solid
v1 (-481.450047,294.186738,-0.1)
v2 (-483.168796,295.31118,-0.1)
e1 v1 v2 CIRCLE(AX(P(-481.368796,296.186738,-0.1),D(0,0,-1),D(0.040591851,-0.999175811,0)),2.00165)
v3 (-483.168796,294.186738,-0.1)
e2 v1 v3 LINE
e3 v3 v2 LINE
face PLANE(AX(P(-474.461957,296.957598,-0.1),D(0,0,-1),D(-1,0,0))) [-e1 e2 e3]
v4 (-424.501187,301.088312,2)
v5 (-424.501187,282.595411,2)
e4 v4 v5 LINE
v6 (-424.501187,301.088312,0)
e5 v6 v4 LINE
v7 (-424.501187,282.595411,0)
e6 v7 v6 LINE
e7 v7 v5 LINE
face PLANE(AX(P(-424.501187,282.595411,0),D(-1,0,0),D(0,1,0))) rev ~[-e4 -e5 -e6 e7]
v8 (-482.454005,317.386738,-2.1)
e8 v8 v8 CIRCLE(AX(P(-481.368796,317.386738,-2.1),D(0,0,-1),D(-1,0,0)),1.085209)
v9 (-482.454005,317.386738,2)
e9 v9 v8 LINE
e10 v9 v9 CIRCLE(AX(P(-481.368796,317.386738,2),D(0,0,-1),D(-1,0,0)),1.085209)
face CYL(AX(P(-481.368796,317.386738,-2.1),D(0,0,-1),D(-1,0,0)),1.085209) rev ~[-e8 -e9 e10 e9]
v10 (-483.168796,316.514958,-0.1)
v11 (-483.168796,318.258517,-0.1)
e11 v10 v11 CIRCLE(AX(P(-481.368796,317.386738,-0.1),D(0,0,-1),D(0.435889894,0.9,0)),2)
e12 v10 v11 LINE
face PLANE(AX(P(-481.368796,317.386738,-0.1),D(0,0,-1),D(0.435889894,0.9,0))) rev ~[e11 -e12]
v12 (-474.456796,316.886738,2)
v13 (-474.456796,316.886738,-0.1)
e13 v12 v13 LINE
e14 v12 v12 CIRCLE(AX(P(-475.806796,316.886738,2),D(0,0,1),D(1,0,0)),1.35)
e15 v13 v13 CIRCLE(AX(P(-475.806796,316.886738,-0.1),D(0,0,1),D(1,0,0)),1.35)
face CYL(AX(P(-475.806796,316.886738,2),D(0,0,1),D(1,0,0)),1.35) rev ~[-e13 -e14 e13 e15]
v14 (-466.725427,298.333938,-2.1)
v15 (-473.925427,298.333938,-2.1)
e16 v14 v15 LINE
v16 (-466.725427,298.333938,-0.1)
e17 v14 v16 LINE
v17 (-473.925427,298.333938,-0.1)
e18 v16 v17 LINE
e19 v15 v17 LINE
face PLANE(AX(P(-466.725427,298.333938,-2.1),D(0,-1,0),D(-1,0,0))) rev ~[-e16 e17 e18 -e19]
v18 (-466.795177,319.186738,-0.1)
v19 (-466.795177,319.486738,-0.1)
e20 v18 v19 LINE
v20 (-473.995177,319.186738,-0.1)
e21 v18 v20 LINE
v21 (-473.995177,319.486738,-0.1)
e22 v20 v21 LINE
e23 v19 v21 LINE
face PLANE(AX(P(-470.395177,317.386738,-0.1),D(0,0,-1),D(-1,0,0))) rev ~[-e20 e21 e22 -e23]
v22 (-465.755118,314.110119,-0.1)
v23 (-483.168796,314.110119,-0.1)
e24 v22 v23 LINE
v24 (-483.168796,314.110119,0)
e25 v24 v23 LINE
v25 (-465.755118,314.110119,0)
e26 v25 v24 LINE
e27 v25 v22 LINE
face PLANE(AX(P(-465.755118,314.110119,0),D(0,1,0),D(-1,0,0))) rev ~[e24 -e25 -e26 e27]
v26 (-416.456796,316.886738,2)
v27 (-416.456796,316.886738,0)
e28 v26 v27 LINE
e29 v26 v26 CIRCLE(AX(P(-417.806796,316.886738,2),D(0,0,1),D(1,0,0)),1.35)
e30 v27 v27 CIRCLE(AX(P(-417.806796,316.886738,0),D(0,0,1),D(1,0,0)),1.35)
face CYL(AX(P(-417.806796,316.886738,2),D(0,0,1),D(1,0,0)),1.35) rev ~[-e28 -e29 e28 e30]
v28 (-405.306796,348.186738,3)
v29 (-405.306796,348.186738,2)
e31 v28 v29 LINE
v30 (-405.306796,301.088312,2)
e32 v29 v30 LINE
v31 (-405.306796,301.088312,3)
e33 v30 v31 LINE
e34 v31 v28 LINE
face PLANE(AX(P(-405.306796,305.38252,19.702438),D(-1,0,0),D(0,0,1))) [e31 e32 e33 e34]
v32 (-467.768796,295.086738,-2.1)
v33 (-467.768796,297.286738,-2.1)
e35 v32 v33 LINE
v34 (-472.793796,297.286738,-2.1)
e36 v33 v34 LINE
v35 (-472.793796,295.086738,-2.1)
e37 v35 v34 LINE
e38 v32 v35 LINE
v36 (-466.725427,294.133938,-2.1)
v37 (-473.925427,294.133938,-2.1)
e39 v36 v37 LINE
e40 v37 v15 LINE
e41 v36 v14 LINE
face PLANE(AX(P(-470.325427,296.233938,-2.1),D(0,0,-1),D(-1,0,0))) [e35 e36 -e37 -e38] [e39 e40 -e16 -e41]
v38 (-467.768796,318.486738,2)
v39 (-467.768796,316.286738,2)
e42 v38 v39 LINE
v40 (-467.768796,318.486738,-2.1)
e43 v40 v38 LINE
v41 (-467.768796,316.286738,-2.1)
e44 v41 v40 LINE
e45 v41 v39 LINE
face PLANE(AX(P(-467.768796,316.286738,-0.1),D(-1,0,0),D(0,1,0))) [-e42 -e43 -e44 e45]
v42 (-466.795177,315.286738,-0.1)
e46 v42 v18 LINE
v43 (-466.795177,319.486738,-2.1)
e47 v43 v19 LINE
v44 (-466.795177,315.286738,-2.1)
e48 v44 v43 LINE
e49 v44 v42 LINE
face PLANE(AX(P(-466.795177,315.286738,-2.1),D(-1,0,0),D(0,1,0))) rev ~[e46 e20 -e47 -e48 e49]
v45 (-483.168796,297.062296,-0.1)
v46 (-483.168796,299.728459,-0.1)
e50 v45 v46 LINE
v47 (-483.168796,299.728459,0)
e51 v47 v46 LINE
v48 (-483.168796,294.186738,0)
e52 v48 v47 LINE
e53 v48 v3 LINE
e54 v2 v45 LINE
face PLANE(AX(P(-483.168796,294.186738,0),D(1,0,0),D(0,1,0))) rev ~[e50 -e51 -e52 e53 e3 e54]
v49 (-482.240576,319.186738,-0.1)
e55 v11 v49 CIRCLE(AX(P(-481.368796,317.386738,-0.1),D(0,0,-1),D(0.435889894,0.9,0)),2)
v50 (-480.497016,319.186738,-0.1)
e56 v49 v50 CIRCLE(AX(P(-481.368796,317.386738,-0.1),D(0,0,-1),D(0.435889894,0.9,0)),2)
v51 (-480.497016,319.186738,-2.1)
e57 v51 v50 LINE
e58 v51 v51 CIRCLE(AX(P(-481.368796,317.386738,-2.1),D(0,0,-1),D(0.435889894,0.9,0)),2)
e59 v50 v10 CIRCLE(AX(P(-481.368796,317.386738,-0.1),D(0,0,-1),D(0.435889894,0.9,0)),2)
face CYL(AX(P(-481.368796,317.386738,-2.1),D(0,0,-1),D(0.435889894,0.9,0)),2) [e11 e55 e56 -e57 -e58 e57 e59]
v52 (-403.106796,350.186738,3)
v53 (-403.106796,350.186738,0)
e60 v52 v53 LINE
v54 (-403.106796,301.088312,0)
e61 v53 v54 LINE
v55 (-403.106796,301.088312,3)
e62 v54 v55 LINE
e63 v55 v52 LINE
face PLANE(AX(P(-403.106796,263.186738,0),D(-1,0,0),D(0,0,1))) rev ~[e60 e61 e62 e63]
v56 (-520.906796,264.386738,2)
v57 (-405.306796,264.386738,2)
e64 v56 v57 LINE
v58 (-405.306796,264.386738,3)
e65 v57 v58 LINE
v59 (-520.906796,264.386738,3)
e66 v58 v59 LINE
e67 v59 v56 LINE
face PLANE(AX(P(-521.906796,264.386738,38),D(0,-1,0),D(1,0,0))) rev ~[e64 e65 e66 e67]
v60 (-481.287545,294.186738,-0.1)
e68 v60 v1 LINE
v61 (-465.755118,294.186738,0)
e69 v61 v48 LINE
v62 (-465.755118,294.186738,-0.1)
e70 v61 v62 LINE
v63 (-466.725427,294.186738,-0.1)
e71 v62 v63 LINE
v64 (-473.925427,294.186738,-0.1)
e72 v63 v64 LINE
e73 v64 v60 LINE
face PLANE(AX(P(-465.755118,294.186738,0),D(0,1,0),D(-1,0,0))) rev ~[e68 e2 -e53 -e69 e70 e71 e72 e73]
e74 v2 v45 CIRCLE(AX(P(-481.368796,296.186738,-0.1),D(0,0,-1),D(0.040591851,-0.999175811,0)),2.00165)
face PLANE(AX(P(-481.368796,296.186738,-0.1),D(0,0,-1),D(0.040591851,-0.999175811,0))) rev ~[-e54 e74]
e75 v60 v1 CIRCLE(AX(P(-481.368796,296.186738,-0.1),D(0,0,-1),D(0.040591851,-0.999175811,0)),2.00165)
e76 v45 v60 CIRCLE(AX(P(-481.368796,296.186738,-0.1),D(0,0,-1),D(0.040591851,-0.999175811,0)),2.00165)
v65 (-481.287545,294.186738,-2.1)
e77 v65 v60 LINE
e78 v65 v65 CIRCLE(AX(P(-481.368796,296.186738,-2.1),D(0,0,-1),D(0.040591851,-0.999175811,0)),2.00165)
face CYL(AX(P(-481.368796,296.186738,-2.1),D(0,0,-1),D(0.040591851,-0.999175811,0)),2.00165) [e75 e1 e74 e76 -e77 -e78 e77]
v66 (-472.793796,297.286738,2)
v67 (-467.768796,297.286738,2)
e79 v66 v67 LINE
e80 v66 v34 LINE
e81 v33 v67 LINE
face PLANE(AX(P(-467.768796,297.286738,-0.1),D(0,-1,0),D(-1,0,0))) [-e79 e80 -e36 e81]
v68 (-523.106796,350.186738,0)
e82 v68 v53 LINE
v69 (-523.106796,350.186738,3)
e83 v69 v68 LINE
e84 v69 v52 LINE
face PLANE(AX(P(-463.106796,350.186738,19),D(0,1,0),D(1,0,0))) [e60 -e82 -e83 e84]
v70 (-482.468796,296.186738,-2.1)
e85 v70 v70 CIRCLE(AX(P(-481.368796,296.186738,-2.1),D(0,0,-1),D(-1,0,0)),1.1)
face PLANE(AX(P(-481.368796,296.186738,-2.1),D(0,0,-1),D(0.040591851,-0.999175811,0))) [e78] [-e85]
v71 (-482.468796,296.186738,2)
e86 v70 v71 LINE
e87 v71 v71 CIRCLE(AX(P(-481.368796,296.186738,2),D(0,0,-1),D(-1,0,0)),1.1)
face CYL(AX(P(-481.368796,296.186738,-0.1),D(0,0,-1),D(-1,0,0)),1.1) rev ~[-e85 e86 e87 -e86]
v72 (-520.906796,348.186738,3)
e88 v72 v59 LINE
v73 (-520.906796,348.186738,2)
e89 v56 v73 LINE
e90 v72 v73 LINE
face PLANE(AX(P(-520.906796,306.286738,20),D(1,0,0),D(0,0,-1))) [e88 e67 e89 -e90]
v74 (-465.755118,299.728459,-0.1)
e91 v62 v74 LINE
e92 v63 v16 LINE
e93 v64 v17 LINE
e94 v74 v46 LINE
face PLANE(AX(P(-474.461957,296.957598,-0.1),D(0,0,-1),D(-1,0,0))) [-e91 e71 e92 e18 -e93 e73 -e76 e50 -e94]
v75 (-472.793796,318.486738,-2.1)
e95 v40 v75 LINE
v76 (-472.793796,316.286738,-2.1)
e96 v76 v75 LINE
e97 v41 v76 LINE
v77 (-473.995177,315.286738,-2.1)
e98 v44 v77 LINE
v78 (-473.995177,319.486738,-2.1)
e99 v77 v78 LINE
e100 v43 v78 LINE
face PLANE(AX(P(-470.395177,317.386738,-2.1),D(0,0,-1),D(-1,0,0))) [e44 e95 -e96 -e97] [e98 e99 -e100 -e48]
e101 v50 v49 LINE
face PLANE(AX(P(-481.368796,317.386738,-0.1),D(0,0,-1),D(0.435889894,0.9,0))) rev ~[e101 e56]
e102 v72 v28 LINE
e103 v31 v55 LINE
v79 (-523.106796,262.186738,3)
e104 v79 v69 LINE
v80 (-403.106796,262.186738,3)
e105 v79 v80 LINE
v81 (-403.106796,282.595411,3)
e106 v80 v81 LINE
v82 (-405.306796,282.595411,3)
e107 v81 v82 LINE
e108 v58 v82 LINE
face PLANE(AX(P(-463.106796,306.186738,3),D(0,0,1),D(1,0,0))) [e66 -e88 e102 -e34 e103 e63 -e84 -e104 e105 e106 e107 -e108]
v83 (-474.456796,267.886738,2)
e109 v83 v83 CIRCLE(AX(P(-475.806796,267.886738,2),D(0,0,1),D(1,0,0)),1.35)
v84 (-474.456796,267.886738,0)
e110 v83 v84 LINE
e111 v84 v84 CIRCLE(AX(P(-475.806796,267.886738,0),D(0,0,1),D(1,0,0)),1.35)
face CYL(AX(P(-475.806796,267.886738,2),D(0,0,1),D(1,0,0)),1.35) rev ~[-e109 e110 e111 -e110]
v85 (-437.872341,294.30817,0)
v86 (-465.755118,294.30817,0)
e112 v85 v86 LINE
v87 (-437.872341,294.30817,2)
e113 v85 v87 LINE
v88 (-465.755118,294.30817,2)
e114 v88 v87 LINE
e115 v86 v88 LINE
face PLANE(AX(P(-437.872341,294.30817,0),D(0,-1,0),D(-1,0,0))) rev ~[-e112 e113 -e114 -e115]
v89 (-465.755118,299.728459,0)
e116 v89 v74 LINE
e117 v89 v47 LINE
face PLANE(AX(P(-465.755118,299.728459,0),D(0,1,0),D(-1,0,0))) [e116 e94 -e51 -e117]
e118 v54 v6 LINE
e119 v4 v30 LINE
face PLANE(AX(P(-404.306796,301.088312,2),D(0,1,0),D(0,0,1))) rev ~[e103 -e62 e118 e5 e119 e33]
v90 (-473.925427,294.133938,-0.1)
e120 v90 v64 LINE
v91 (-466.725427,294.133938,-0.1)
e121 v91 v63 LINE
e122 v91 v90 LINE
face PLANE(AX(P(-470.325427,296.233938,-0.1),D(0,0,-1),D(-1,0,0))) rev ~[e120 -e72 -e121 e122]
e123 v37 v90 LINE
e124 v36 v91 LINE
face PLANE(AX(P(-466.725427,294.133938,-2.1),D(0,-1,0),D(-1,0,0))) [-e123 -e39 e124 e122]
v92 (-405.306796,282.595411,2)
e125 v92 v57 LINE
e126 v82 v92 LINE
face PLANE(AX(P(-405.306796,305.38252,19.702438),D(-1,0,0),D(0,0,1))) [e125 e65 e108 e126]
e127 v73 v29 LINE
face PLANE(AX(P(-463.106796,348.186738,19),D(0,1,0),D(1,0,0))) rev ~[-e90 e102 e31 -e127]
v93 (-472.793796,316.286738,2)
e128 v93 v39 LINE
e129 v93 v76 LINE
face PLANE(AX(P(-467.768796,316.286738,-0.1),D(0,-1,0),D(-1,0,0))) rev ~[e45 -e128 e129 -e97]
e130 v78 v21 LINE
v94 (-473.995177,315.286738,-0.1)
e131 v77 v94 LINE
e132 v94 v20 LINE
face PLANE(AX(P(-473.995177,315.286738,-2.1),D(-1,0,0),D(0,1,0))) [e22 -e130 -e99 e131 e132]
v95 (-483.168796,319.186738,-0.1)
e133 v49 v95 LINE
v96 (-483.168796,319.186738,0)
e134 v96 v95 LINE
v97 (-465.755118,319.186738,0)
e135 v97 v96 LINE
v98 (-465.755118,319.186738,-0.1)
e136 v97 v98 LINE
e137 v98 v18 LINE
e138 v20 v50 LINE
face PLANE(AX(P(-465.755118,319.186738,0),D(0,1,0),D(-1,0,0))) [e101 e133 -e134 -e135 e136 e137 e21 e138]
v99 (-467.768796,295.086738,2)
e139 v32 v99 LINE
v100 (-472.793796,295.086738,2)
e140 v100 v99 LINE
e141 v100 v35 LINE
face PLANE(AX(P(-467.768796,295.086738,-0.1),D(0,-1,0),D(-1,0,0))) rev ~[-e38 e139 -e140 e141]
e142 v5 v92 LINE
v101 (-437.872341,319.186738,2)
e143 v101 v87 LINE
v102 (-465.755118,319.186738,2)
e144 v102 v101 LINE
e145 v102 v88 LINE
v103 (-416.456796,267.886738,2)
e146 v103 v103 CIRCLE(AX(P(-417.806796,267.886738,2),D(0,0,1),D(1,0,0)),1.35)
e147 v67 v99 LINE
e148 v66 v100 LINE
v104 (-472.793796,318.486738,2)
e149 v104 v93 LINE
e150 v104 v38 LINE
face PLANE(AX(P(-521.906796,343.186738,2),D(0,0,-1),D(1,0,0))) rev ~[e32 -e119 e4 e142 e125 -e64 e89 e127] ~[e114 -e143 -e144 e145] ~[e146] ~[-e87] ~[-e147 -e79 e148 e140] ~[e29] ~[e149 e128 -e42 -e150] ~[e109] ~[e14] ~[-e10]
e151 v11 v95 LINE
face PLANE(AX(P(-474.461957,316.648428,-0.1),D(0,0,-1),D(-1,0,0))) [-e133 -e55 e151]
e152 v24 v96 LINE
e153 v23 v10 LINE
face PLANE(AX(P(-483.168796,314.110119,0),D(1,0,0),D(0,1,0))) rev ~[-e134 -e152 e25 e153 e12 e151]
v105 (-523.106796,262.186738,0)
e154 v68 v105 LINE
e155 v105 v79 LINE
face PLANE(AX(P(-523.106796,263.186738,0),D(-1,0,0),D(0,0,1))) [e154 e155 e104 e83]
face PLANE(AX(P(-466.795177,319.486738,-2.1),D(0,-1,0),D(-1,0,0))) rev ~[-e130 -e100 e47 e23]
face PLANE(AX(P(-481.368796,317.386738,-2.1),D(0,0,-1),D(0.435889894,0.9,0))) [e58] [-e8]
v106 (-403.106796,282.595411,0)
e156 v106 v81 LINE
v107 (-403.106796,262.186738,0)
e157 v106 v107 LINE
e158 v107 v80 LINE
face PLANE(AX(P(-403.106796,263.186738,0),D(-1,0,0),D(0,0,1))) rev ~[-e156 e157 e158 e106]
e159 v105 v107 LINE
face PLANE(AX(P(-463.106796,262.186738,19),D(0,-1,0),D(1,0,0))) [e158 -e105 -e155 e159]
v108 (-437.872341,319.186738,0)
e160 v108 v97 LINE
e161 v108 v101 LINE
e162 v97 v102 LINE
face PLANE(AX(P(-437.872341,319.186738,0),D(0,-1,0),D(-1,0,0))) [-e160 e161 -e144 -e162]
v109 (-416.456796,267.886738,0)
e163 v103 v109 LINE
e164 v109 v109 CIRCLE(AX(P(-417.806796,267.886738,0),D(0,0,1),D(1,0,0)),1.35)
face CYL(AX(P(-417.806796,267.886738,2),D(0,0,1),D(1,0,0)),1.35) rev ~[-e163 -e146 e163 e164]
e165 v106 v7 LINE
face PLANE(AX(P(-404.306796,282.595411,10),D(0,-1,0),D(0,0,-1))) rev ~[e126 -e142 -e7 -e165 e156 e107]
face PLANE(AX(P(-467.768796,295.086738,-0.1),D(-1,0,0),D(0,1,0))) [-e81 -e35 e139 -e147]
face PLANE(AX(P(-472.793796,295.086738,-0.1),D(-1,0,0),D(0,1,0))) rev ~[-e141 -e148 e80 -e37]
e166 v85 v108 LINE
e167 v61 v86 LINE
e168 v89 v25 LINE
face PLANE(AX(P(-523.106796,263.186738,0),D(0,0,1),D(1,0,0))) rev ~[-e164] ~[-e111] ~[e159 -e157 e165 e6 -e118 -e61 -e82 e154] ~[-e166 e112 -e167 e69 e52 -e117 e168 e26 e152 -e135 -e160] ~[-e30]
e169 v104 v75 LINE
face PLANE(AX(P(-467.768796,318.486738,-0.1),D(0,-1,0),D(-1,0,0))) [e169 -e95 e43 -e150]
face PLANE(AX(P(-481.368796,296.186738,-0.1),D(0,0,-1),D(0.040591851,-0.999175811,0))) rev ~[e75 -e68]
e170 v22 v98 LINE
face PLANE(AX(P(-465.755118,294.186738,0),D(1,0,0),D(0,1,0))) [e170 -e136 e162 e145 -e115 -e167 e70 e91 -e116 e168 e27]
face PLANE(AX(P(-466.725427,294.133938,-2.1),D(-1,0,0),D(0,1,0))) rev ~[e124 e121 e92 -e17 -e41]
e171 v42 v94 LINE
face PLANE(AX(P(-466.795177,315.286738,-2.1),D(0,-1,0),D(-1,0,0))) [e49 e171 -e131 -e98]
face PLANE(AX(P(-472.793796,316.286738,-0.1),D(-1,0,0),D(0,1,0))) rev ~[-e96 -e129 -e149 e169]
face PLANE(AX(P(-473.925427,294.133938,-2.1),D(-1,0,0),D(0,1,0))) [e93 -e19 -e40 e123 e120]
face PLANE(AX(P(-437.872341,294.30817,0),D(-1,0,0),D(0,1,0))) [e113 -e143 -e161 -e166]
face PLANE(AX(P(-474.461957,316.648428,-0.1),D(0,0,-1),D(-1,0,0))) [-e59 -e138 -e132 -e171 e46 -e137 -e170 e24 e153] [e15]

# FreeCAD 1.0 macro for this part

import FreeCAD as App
import Part
import Sketcher
from FreeCAD import Vector

doc = App.newDocument("Part")
params = doc.addObject("Spreadsheet::Sheet", "Params")
for row, (alias, value) in enumerate([
    ("sketch1_width", "120 mm"),
    ("sketch1_height", "80 mm"),
    ("pad1_length", "38 mm"),
    ("sketch2_width", "117.6 mm"),
    ("sketch2_height", "77.6 mm"),
    ("pocket1_length", "36 mm"),
    ("pocket2_length", "10 mm"),
    ("pad2_length", "0.1 mm"),
    ("pocket3_length", "12 mm"),
    ("sketch6_diameter", "2.2 mm"),
    ("sketch6_height", "2.2 mm"),
    ("pocket4_length", "12 mm"),
    ("sketch7_diameter", "2.7 mm"),
    ("pocket5_length", "12 mm"),
    ("sketch8_height", "36 mm"),
    ("sketch8_width", "117.6 mm"),
    ("pocket6_length", "10 mm"),
    ("sketch9_width", "120 mm"),
    ("sketch9_height", "36 mm"),
    ("sketch9_height2", "38 mm"),
    ("sketch9_width2", "117.6 mm"),
    ("pad3_length", "5 mm"),
    ("sketch10_width", "120 mm"),
    ("sketch10_height", "38 mm"),
    ("pad4_length", "2 mm"),
    ("sketch11_height", "36 mm"),
    ("sketch11_width", "83.8 mm"),
    ("pad5_length", "1 mm"),
    ("sketch12_height", "8 mm"),
    ("sketch12_height2", "36 mm"),
    ("sketch12_width", "83.8 mm"),
    ("pad6_length", "1 mm"),
    ("sketch13_width", "120 mm"),
    ("sketch13_height", "38 mm"),
    ("pad7_length", "1 mm"),
    ("sketch14_diameter", "4 mm"),
    ("sketch14_diameter2", "2.2 mm"),
    ("sketch14_width", "7.2 mm"),
    ("sketch14_height", "4.2 mm"),
    ("sketch14_height2", "2.2 mm"),
    ("pad8_length", "2 mm"),
    ("sketch15_width", "120 mm"),
    ("sketch15_height", "88 mm"),
    ("pocket7_length", "35 mm"),
], start=1):
    params.set(f"A{row}", alias)
    params.set(f"B{row}", "=" + value)
    params.setAlias(f"B{row}", alias)

body = doc.addObject("PartDesign::Body", "Body")

sketch1 = body.newObject("Sketcher::SketchObject", "Sketch")
sketch1.AttachmentSupport = (doc.getObject("XY_Plane"), [""])
sketch1.MapMode = "FlatFace"
sketch1.addGeometry(Part.LineSegment(Vector(-523, 343, 0), Vector(-523, 263, 0)), False)
sketch1.addGeometry(Part.LineSegment(Vector(-523, 263, 0), Vector(-403, 263, 0)), False)
sketch1.addGeometry(Part.LineSegment(Vector(-403, 263, 0), Vector(-403, 343, 0)), False)
sketch1.addGeometry(Part.LineSegment(Vector(-403, 343, 0), Vector(-523, 343, 0)), False)
sketch1.addConstraint(Sketcher.Constraint("Coincident", 0, 2, 1, 1))
sketch1.addConstraint(Sketcher.Constraint("Coincident", 1, 2, 2, 1))
sketch1.addConstraint(Sketcher.Constraint("Coincident", 2, 2, 3, 1))
sketch1.addConstraint(Sketcher.Constraint("Coincident", 3, 2, 0, 1))
sketch1.addConstraint(Sketcher.Constraint("Vertical", 0))
sketch1.addConstraint(Sketcher.Constraint("Horizontal", 1))
sketch1.addConstraint(Sketcher.Constraint("Vertical", 2))
sketch1.addConstraint(Sketcher.Constraint("Horizontal", 3))
sketch1.addConstraint(Sketcher.Constraint("DistanceX", 1, 1, 1, 2, 120.0))
sketch1.addConstraint(Sketcher.Constraint("DistanceY", 0, 2, 0, 1, 80.0))
sketch1.addConstraint(Sketcher.Constraint("DistanceX", 0, 2, -1, 1, 523.106796))
sketch1.addConstraint(Sketcher.Constraint("DistanceY", -1, 1, 0, 2, 263.186738))
sketch1.setExpression("Constraints[8]", "Params.sketch1_width")
sketch1.setExpression("Constraints[9]", "Params.sketch1_height")
pad1 = body.newObject("PartDesign::Pad", "Pad")
pad1.Profile = sketch1
pad1.setExpression("Length", "Params.pad1_length")

sketch2 = body.newObject("Sketcher::SketchObject", "Sketch001")
sketch2.AttachmentSupport = (doc.getObject("XY_Plane"), [""])
sketch2.MapMode = "FlatFace"
sketch2.AttachmentOffset = App.Placement(Vector(0, 0, 38), App.Rotation())
sketch2.addGeometry(Part.LineSegment(Vector(-522, 342, 0), Vector(-522, 264, 0)), False)
sketch2.addGeometry(Part.LineSegment(Vector(-522, 264, 0), Vector(-404, 264, 0)), False)
sketch2.addGeometry(Part.LineSegment(Vector(-404, 264, 0), Vector(-404, 342, 0)), False)
sketch2.addGeometry(Part.LineSegment(Vector(-404, 342, 0), Vector(-522, 342, 0)), False)
sketch2.addConstraint(Sketcher.Constraint("Coincident", 0, 2, 1, 1))
sketch2.addConstraint(Sketcher.Constraint("Coincident", 1, 2, 2, 1))
sketch2.addConstraint(Sketcher.Constraint("Coincident", 2, 2, 3, 1))
sketch2.addConstraint(Sketcher.Constraint("Coincident", 3, 2, 0, 1))
sketch2.addConstraint(Sketcher.Constraint("Vertical", 0))
sketch2.addConstraint(Sketcher.Constraint("Horizontal", 1))
sketch2.addConstraint(Sketcher.Constraint("Vertical", 2))
sketch2.addConstraint(Sketcher.Constraint("Horizontal", 3))
sketch2.addConstraint(Sketcher.Constraint("DistanceX", 1, 1, 1, 2, 117.6))
sketch2.addConstraint(Sketcher.Constraint("DistanceY", 0, 2, 0, 1, 77.6))
sketch2.addConstraint(Sketcher.Constraint("DistanceX", 0, 2, -1, 1, 521.906796))
sketch2.addConstraint(Sketcher.Constraint("DistanceY", -1, 1, 0, 2, 264.386738))
sketch2.setExpression("Constraints[8]", "Params.sketch2_width")
sketch2.setExpression("Constraints[9]", "Params.sketch2_height")
pocket1 = body.newObject("PartDesign::Pocket", "Pocket")
pocket1.Profile = sketch2
pocket1.setExpression("Length", "Params.pocket1_length")

sketch3 = body.newObject("Sketcher::SketchObject", "Sketch002")
sketch3.AttachmentSupport = (doc.getObject("XY_Plane"), [""])
sketch3.MapMode = "FlatFace"
sketch3.addGeometry(Part.LineSegment(Vector(-399, 301, 0), Vector(-399, 283, 0)), False)
sketch3.addGeometry(Part.LineSegment(Vector(-399, 283, 0), Vector(-425, 283, 0)), False)
sketch3.addGeometry(Part.LineSegment(Vector(-425, 283, 0), Vector(-425, 301, 0)), False)
sketch3.addGeometry(Part.LineSegment(Vector(-425, 301, 0), Vector(-399, 301, 0)), False)
sketch3.addConstraint(Sketcher.Constraint("Coincident", 0, 2, 1, 1))
sketch3.addConstraint(Sketcher.Constraint("Coincident", 1, 2, 2, 1))
sketch3.addConstraint(Sketcher.Constraint("Coincident", 2, 2, 3, 1))
sketch3.addConstraint(Sketcher.Constraint("Coincident", 3, 2, 0, 1))
sketch3.addConstraint(Sketcher.Constraint("Vertical", 0))
sketch3.addConstraint(Sketcher.Constraint("Horizontal", 1))
sketch3.addConstraint(Sketcher.Constraint("Vertical", 2))
sketch3.addConstraint(Sketcher.Constraint("Horizontal", 3))
sketch3.addConstraint(Sketcher.Constraint("DistanceY", 0, 2, 0, 1, 18.492901))
sketch3.addConstraint(Sketcher.Constraint("DistanceX", 1, 2, 1, 1, 25.152971))
sketch3.addConstraint(Sketcher.Constraint("DistanceY", -1, 1, 0, 2, 282.595411))
sketch3.addConstraint(Sketcher.Constraint("DistanceX", 0, 2, -1, 1, 399.348216))
pocket2 = body.newObject("PartDesign::Pocket", "Pocket001")
pocket2.Profile = sketch3
pocket2.setExpression("Length", "Params.pocket2_length")
pocket2.Reversed = True

sketch4 = body.newObject("Sketcher::SketchObject", "Sketch003")
sketch4.AttachmentSupport = (doc.getObject("XY_Plane"), [""])
sketch4.MapMode = "FlatFace"
sketch4.addGeometry(Part.LineSegment(Vector(-466, 319, 0), Vector(-466, 314, 0)), False)
sketch4.addGeometry(Part.LineSegment(Vector(-466, 314, 0), Vector(-483, 314, 0)), False)
sketch4.addGeometry(Part.LineSegment(Vector(-483, 314, 0), Vector(-483, 319, 0)), False)
sketch4.addGeometry(Part.LineSegment(Vector(-483, 319, 0), Vector(-466, 319, 0)), False)
sketch4.addGeometry(Part.LineSegment(Vector(-466, 300, 0), Vector(-466, 294, 0)), False)
sketch4.addGeometry(Part.LineSegment(Vector(-466, 294, 0), Vector(-483, 294, 0)), False)
sketch4.addGeometry(Part.LineSegment(Vector(-483, 294, 0), Vector(-483, 300, 0)), False)
sketch4.addGeometry(Part.LineSegment(Vector(-483, 300, 0), Vector(-466, 300, 0)), False)
sketch4.addConstraint(Sketcher.Constraint("Coincident", 0, 2, 1, 1))
sketch4.addConstraint(Sketcher.Constraint("Coincident", 1, 2, 2, 1))
sketch4.addConstraint(Sketcher.Constraint("Coincident", 2, 2, 3, 1))
sketch4.addConstraint(Sketcher.Constraint("Coincident", 3, 2, 0, 1))
sketch4.addConstraint(Sketcher.Constraint("Coincident", 4, 2, 5, 1))
sketch4.addConstraint(Sketcher.Constraint("Coincident", 5, 2, 6, 1))
sketch4.addConstraint(Sketcher.Constraint("Coincident", 6, 2, 7, 1))
sketch4.addConstraint(Sketcher.Constraint("Coincident", 7, 2, 4, 1))
sketch4.addConstraint(Sketcher.Constraint("Vertical", 0))
sketch4.addConstraint(Sketcher.Constraint("Horizontal", 1))
sketch4.addConstraint(Sketcher.Constraint("Vertical", 2))
sketch4.addConstraint(Sketcher.Constraint("Horizontal", 3))
sketch4.addConstraint(Sketcher.Constraint("Vertical", 4))
sketch4.addConstraint(Sketcher.Constraint("Horizontal", 5))
sketch4.addConstraint(Sketcher.Constraint("Vertical", 6))
sketch4.addConstraint(Sketcher.Constraint("Horizontal", 7))
sketch4.addConstraint(Sketcher.Constraint("Vertical", 3, 2, 4, 2))
sketch4.addConstraint(Sketcher.Constraint("Vertical", 2, 2, 5, 2))
sketch4.addConstraint(Sketcher.Constraint("DistanceY", 4, 2, 3, 2, 25.0))
sketch4.addConstraint(Sketcher.Constraint("DistanceX", 1, 2, 1, 1, 17.413678))
sketch4.addConstraint(Sketcher.Constraint("DistanceY", 0, 2, 0, 1, 5.076619))
sketch4.addConstraint(Sketcher.Constraint("DistanceY", 4, 2, 4, 1, 5.541721))
sketch4.addConstraint(Sketcher.Constraint("DistanceY", -1, 1, 0, 2, 314.110119))
sketch4.addConstraint(Sketcher.Constraint("DistanceX", 0, 2, -1, 1, 465.755118))
pad2 = body.newObject("PartDesign::Pad", "Pad001")
pad2.Profile = sketch4
pad2.setExpression("Length", "Params.pad2_length")
pad2.Reversed = True

sketch5 = body.newObject("Sketcher::SketchObject", "Sketch004")
sketch5.AttachmentSupport = (doc.getObject("XY_Plane"), [""])
sketch5.MapMode = "FlatFace"
sketch5.addGeometry(Part.LineSegment(Vector(-438, 319, 0), Vector(-438, 294, 0)), False)
sketch5.addGeometry(Part.LineSegment(Vector(-438, 294, 0), Vector(-466, 294, 0)), False)
sketch5.addGeometry(Part.LineSegment(Vector(-466, 294, 0), Vector(-466, 319, 0)), False)
sketch5.addGeometry(Part.LineSegment(Vector(-466, 319, 0), Vector(-438, 319, 0)), False)
sketch5.addConstraint(Sketcher.Constraint("Coincident", 0, 2, 1, 1))
sketch5.addConstraint(Sketcher.Constraint("Coincident", 1, 2, 2, 1))
sketch5.addConstraint(Sketcher.Constraint("Coincident", 2, 2, 3, 1))
sketch5.addConstraint(Sketcher.Constraint("Coincident", 3, 2, 0, 1))
sketch5.addConstraint(Sketcher.Constraint("Vertical", 0))
sketch5.addConstraint(Sketcher.Constraint("Horizontal", 1))
sketch5.addConstraint(Sketcher.Constraint("Vertical", 2))
sketch5.addConstraint(Sketcher.Constraint("Horizontal", 3))
sketch5.addConstraint(Sketcher.Constraint("DistanceY", 0, 2, 0, 1, 24.878568))
sketch5.addConstraint(Sketcher.Constraint("DistanceX", 1, 2, 1, 1, 27.882777))
sketch5.addConstraint(Sketcher.Constraint("DistanceX", 0, 2, -1, 1, 437.872341))
sketch5.addConstraint(Sketcher.Constraint("DistanceY", -1, 1, 0, 2, 294.30817))
pocket3 = body.newObject("PartDesign::Pocket", "Pocket002")
pocket3.Profile = sketch5
pocket3.setExpression("Length", "Params.pocket3_length")
pocket3.Reversed = True

sketch6 = body.newObject("Sketcher::SketchObject", "Sketch005")
sketch6.AttachmentSupport = (doc.getObject("XY_Plane"), [""])
sketch6.MapMode = "FlatFace"
sketch6.AttachmentOffset = App.Placement(Vector(0, 0, -0.1), App.Rotation())
sketch6.addGeometry(Part.Circle(Vector(-481.4, 317.4, 0), Vector(0, 0, 1), 1.1), False)
sketch6.addGeometry(Part.Circle(Vector(-481.4, 296.2, 0), Vector(0, 0, 1), 1.1), False)
sketch6.addGeometry(Part.LineSegment(Vector(-467.8, 318.5, 0), Vector(-467.8, 316.3, 0)), False)
sketch6.addGeometry(Part.LineSegment(Vector(-467.8, 316.3, 0), Vector(-472.8, 316.3, 0)), False)
sketch6.addGeometry(Part.LineSegment(Vector(-472.8, 316.3, 0), Vector(-472.8, 318.5, 0)), False)
sketch6.addGeometry(Part.LineSegment(Vector(-472.8, 318.5, 0), Vector(-467.8, 318.5, 0)), False)
sketch6.addGeometry(Part.LineSegment(Vector(-467.8, 297.3, 0), Vector(-467.8, 295.1, 0)), False)
sketch6.addGeometry(Part.LineSegment(Vector(-467.8, 295.1, 0), Vector(-472.8, 295.1, 0)), False)
sketch6.addGeometry(Part.LineSegment(Vector(-472.8, 295.1, 0), Vector(-472.8, 297.3, 0)), False)
sketch6.addGeometry(Part.LineSegment(Vector(-472.8, 297.3, 0), Vector(-467.8, 297.3, 0)), False)
sketch6.addConstraint(Sketcher.Constraint("Coincident", 2, 2, 3, 1))
sketch6.addConstraint(Sketcher.Constraint("Coincident", 3, 2, 4, 1))
sketch6.addConstraint(Sketcher.Constraint("Coincident", 4, 2, 5, 1))
sketch6.addConstraint(Sketcher.Constraint("Coincident", 5, 2, 2, 1))
sketch6.addConstraint(Sketcher.Constraint("Coincident", 6, 2, 7, 1))
sketch6.addConstraint(Sketcher.Constraint("Coincident", 7, 2, 8, 1))
sketch6.addConstraint(Sketcher.Constraint("Coincident", 8, 2, 9, 1))
sketch6.addConstraint(Sketcher.Constraint("Coincident", 9, 2, 6, 1))
sketch6.addConstraint(Sketcher.Constraint("Vertical", 2))
sketch6.addConstraint(Sketcher.Constraint("Horizontal", 3))
sketch6.addConstraint(Sketcher.Constraint("Vertical", 4))
sketch6.addConstraint(Sketcher.Constraint("Horizontal", 5))
sketch6.addConstraint(Sketcher.Constraint("Vertical", 6))
sketch6.addConstraint(Sketcher.Constraint("Horizontal", 7))
sketch6.addConstraint(Sketcher.Constraint("Vertical", 8))
sketch6.addConstraint(Sketcher.Constraint("Horizontal", 9))
sketch6.addConstraint(Sketcher.Constraint("Vertical", 0, 3, 1, 3))
sketch6.addConstraint(Sketcher.Constraint("Vertical", 5, 2, 6, 2))
sketch6.addConstraint(Sketcher.Constraint("Vertical", 4, 2, 7, 2))
sketch6.addConstraint(Sketcher.Constraint("Equal", 4, 6))
sketch6.addConstraint(Sketcher.Constraint("Diameter", 1, 2.2))
sketch6.addConstraint(Sketcher.Constraint("DistanceY", 2, 2, 2, 1, 2.2))
sketch6.addConstraint(Sketcher.Constraint("DistanceY", 8, 2, 3, 2, 19.0))
sketch6.addConstraint(Sketcher.Constraint("DistanceY", 1, 3, 0, 3, 21.2))
sketch6.addConstraint(Sketcher.Constraint("DistanceX", 0, 3, 2, 2, 13.6))
sketch6.addConstraint(Sketcher.Constraint("DistanceY", 2, 2, 0, 3, 1.1))
sketch6.addConstraint(Sketcher.Constraint("Diameter", 0, 2.170418))
sketch6.addConstraint(Sketcher.Constraint("DistanceX", 3, 2, 3, 1, 5.025))
sketch6.addConstraint(Sketcher.Constraint("DistanceX", 0, 3, -1, 1, 481.368796))
sketch6.addConstraint(Sketcher.Constraint("DistanceY", -1, 1, 0, 3, 317.386738))
sketch6.setExpression("Constraints[20]", "Params.sketch6_diameter")
sketch6.setExpression("Constraints[21]", "Params.sketch6_height")
pocket4 = body.newObject("PartDesign::Pocket", "Pocket003")
pocket4.Profile = sketch6
pocket4.setExpression("Length", "Params.pocket4_length")
pocket4.Reversed = True

sketch7 = body.newObject("Sketcher::SketchObject", "Sketch006")
sketch7.AttachmentSupport = (doc.getObject("XY_Plane"), [""])
sketch7.MapMode = "FlatFace"
sketch7.AttachmentOffset = App.Placement(Vector(0, 0, 2), App.Rotation())
sketch7.addGeometry(Part.Circle(Vector(-475.8, 316.9, 0), Vector(0, 0, 1), 1.4), False)
sketch7.addGeometry(Part.Circle(Vector(-417.8, 316.9, 0), Vector(0, 0, 1), 1.4), False)
sketch7.addGeometry(Part.Circle(Vector(-417.8, 267.9, 0), Vector(0, 0, 1), 1.4), False)
sketch7.addGeometry(Part.Circle(Vector(-475.8, 267.9, 0), Vector(0, 0, 1), 1.4), False)
sketch7.addConstraint(Sketcher.Constraint("Equal", 0, 1))
sketch7.addConstraint(Sketcher.Constraint("Equal", 1, 2))
sketch7.addConstraint(Sketcher.Constraint("Equal", 2, 3))
sketch7.addConstraint(Sketcher.Constraint("Horizontal", 0, 3, 1, 3))
sketch7.addConstraint(Sketcher.Constraint("Horizontal", 2, 3, 3, 3))
sketch7.addConstraint(Sketcher.Constraint("Vertical", 1, 3, 2, 3))
sketch7.addConstraint(Sketcher.Constraint("Vertical", 0, 3, 3, 3))
sketch7.addConstraint(Sketcher.Constraint("Diameter", 0, 2.7))
sketch7.addConstraint(Sketcher.Constraint("DistanceX", 0, 3, 1, 3, 58.0))
sketch7.addConstraint(Sketcher.Constraint("DistanceY", 2, 3, 1, 3, 49.0))
sketch7.addConstraint(Sketcher.Constraint("DistanceX", 0, 3, -1, 1, 475.806796))
sketch7.addConstraint(Sketcher.Constraint("DistanceY", -1, 1, 0, 3, 316.886738))
sketch7.setExpression("Constraints[7]", "Params.sketch7_diameter")
pocket5 = body.newObject("PartDesign::Pocket", "Pocket004")
pocket5.Profile = sketch7
pocket5.setExpression("Length", "Params.pocket5_length")

sketch8 = body.newObject("Sketcher::SketchObject", "Sketch007")
sketch8.AttachmentSupport = (doc.getObject("XZ_Plane"), [""])
sketch8.MapMode = "FlatFace"
sketch8.AttachmentOffset = App.Placement(Vector(0, 0, -341.986738), App.Rotation())
sketch8.addGeometry(Part.LineSegment(Vector(-522, 38, 0), Vector(-522, 2, 0)), False)
sketch8.addGeometry(Part.LineSegment(Vector(-522, 2, 0), Vector(-404, 2, 0)), False)
sketch8.addGeometry(Part.LineSegment(Vector(-404, 2, 0), Vector(-404, 38, 0)), False)
sketch8.addGeometry(Part.LineSegment(Vector(-404, 38, 0), Vector(-522, 38, 0)), False)
sketch8.addConstraint(Sketcher.Constraint("Coincident", 0, 2, 1, 1))
sketch8.addConstraint(Sketcher.Constraint("Coincident", 1, 2, 2, 1))
sketch8.addConstraint(Sketcher.Constraint("Coincident", 2, 2, 3, 1))
sketch8.addConstraint(Sketcher.Constraint("Coincident", 3, 2, 0, 1))
sketch8.addConstraint(Sketcher.Constraint("Vertical", 0))
sketch8.addConstraint(Sketcher.Constraint("Horizontal", 1))
sketch8.addConstraint(Sketcher.Constraint("Vertical", 2))
sketch8.addConstraint(Sketcher.Constraint("Horizontal", 3))
sketch8.addConstraint(Sketcher.Constraint("DistanceY", 0, 2, 0, 1, 36.0))
sketch8.addConstraint(Sketcher.Constraint("DistanceX", 1, 1, 1, 2, 117.6))
sketch8.addConstraint(Sketcher.Constraint("DistanceY", -1, 1, 0, 2, 2.0))
sketch8.addConstraint(Sketcher.Constraint("DistanceX", 0, 2, -1, 1, 521.906796))
sketch8.setExpression("Constraints[8]", "Params.sketch8_height")
sketch8.setExpression("Constraints[9]", "Params.sketch8_width")
pocket6 = body.newObject("PartDesign::Pocket", "Pocket005")
pocket6.Profile = sketch8
pocket6.setExpression("Length", "Params.pocket6_length")

sketch9 = body.newObject("Sketcher::SketchObject", "Sketch008")
sketch9.AttachmentSupport = (doc.getObject("XZ_Plane"), [""])
sketch9.MapMode = "FlatFace"
sketch9.AttachmentOffset = App.Placement(Vector(0, 0, -343.186738), App.Rotation())
sketch9.addGeometry(Part.LineSegment(Vector(-521.9, 2, 0), Vector(-404.3, 2, 0)), False)
sketch9.addGeometry(Part.LineSegment(Vector(-404.3, 2, 0), Vector(-404.3, 38, 0)), False)
sketch9.addGeometry(Part.LineSegment(Vector(-404.3, 38, 0), Vector(-403.1, 38, 0)), False)
sketch9.addGeometry(Part.LineSegment(Vector(-403.1, 38, 0), Vector(-403.1, 0, 0)), False)
sketch9.addGeometry(Part.LineSegment(Vector(-403.1, 0, 0), Vector(-523.1, 0, 0)), False)
sketch9.addGeometry(Part.LineSegment(Vector(-523.1, 0, 0), Vector(-523.1, 38, 0)), False)
sketch9.addGeometry(Part.LineSegment(Vector(-523.1, 38, 0), Vector(-521.9, 38, 0)), False)
sketch9.addGeometry(Part.LineSegment(Vector(-521.9, 38, 0), Vector(-521.9, 2, 0)), False)
sketch9.addConstraint(Sketcher.Constraint("Coincident", 0, 2, 1, 1))
sketch9.addConstraint(Sketcher.Constraint("Coincident", 1, 2, 2, 1))
sketch9.addConstraint(Sketcher.Constraint("Coincident", 2, 2, 3, 1))
sketch9.addConstraint(Sketcher.Constraint("Coincident", 3, 2, 4, 1))
sketch9.addConstraint(Sketcher.Constraint("Coincident", 4, 2, 5, 1))
sketch9.addConstraint(Sketcher.Constraint("Coincident", 5, 2, 6, 1))
sketch9.addConstraint(Sketcher.Constraint("Coincident", 6, 2, 7, 1))
sketch9.addConstraint(Sketcher.Constraint("Coincident", 7, 2, 0, 1))
sketch9.addConstraint(Sketcher.Constraint("Horizontal", 0))
sketch9.addConstraint(Sketcher.Constraint("Vertical", 1))
sketch9.addConstraint(Sketcher.Constraint("Horizontal", 2))
sketch9.addConstraint(Sketcher.Constraint("Vertical", 3))
sketch9.addConstraint(Sketcher.Constraint("Horizontal", 4))
sketch9.addConstraint(Sketcher.Constraint("Vertical", 5))
sketch9.addConstraint(Sketcher.Constraint("Horizontal", 6))
sketch9.addConstraint(Sketcher.Constraint("Vertical", 7))
sketch9.addConstraint(Sketcher.Constraint("PointOnObject", 3, 2, -1))
sketch9.addConstraint(Sketcher.Constraint("Horizontal", 2, 2, 5, 2))
sketch9.addConstraint(Sketcher.Constraint("Equal", 2, 6))
sketch9.addConstraint(Sketcher.Constraint("DistanceX", 4, 2, 4, 1, 120.0))
sketch9.addConstraint(Sketcher.Constraint("DistanceY", 1, 1, 1, 2, 36.0))
sketch9.addConstraint(Sketcher.Constraint("DistanceY", 3, 2, 3, 1, 38.0))
sketch9.addConstraint(Sketcher.Constraint("DistanceX", 0, 1, 0, 2, 117.6))
sketch9.addConstraint(Sketcher.Constraint("DistanceX", 0, 2, -1, 1, 404.306796))
sketch9.setExpression("Constraints[19]", "Params.sketch9_width")
sketch9.setExpression("Constraints[20]", "Params.sketch9_height")
sketch9.setExpression("Constraints[21]", "Params.sketch9_height2")
sketch9.setExpression("Constraints[22]", "Params.sketch9_width2")
pad3 = body.newObject("PartDesign::Pad", "Pad002")
pad3.Profile = sketch9
pad3.setExpression("Length", "Params.pad3_length")
pad3.Reversed = True

sketch10 = body.newObject("Sketcher::SketchObject", "Sketch009")
sketch10.AttachmentSupport = (doc.getObject("XZ_Plane"), [""])
sketch10.MapMode = "FlatFace"
sketch10.AttachmentOffset = App.Placement(Vector(0, 0, -348.186738), App.Rotation())
sketch10.addGeometry(Part.LineSegment(Vector(-523, 0, 0), Vector(-523, 38, 0)), False)
sketch10.addGeometry(Part.LineSegment(Vector(-523, 38, 0), Vector(-403, 38, 0)), False)
sketch10.addGeometry(Part.LineSegment(Vector(-403, 38, 0), Vector(-403, 0, 0)), False)
sketch10.addGeometry(Part.LineSegment(Vector(-403, 0, 0), Vector(-523, 0, 0)), False)
sketch10.addConstraint(Sketcher.Constraint("Coincident", 0, 2, 1, 1))
sketch10.addConstraint(Sketcher.Constraint("Coincident", 1, 2, 2, 1))
sketch10.addConstraint(Sketcher.Constraint("Coincident", 2, 2, 3, 1))
sketch10.addConstraint(Sketcher.Constraint("Coincident", 3, 2, 0, 1))
sketch10.addConstraint(Sketcher.Constraint("Vertical", 0))
sketch10.addConstraint(Sketcher.Constraint("Horizontal", 1))
sketch10.addConstraint(Sketcher.Constraint("Vertical", 2))
sketch10.addConstraint(Sketcher.Constraint("Horizontal", 3))
sketch10.addConstraint(Sketcher.Constraint("PointOnObject", 2, 2, -1))
sketch10.addConstraint(Sketcher.Constraint("DistanceX", 1, 1, 1, 2, 120.0))
sketch10.addConstraint(Sketcher.Constraint("DistanceY", 0, 1, 0, 2, 38.0))
sketch10.addConstraint(Sketcher.Constraint("DistanceX", 0, 2, -1, 1, 523.106796))
sketch10.setExpression("Constraints[9]", "Params.sketch10_width")
sketch10.setExpression("Constraints[10]", "Params.sketch10_height")
pad4 = body.newObject("PartDesign::Pad", "Pad003")
pad4.Profile = sketch10
pad4.setExpression("Length", "Params.pad4_length")
pad4.Reversed = True

sketch11 = body.newObject("Sketcher::SketchObject", "Sketch010")
sketch11.AttachmentSupport = (doc.getObject("YZ_Plane"), [""])
sketch11.MapMode = "FlatFace"
sketch11.AttachmentOffset = App.Placement(Vector(0, 0, -521.906796), App.Rotation())
sketch11.addGeometry(Part.LineSegment(Vector(348, 38, 0), Vector(264, 38, 0)), False)
sketch11.addGeometry(Part.LineSegment(Vector(264, 38, 0), Vector(264, 2, 0)), False)
sketch11.addGeometry(Part.LineSegment(Vector(264, 2, 0), Vector(348, 2, 0)), False)
sketch11.addGeometry(Part.LineSegment(Vector(348, 2, 0), Vector(348, 38, 0)), False)
sketch11.addConstraint(Sketcher.Constraint("Coincident", 0, 2, 1, 1))
sketch11.addConstraint(Sketcher.Constraint("Coincident", 1, 2, 2, 1))
sketch11.addConstraint(Sketcher.Constraint("Coincident", 2, 2, 3, 1))
sketch11.addConstraint(Sketcher.Constraint("Coincident", 3, 2, 0, 1))
sketch11.addConstraint(Sketcher.Constraint("Horizontal", 0))
sketch11.addConstraint(Sketcher.Constraint("Vertical", 1))
sketch11.addConstraint(Sketcher.Constraint("Horizontal", 2))
sketch11.addConstraint(Sketcher.Constraint("Vertical", 3))
sketch11.addConstraint(Sketcher.Constraint("DistanceY", 1, 2, 1, 1, 36.0))
sketch11.addConstraint(Sketcher.Constraint("DistanceX", 0, 2, 0, 1, 83.8))
sketch11.addConstraint(Sketcher.Constraint("DistanceY", -1, 1, 0, 2, 38.0))
sketch11.addConstraint(Sketcher.Constraint("DistanceX", -1, 1, 0, 2, 264.386738))
sketch11.setExpression("Constraints[8]", "Params.sketch11_height")
sketch11.setExpression("Constraints[9]", "Params.sketch11_width")
pad5 = body.newObject("PartDesign::Pad", "Pad004")
pad5.Profile = sketch11
pad5.setExpression("Length", "Params.pad5_length")

sketch12 = body.newObject("Sketcher::SketchObject", "Sketch011")
sketch12.AttachmentSupport = (doc.getObject("YZ_Plane"), [""])
sketch12.MapMode = "FlatFace"
sketch12.AttachmentOffset = App.Placement(Vector(0, 0, -404.306796), App.Rotation())
sketch12.addGeometry(Part.LineSegment(Vector(301, 10, 0), Vector(283, 10, 0)), False)
sketch12.addGeometry(Part.LineSegment(Vector(283, 10, 0), Vector(283, 2, 0)), False)
sketch12.addGeometry(Part.LineSegment(Vector(283, 2, 0), Vector(264, 2, 0)), False)
sketch12.addGeometry(Part.LineSegment(Vector(264, 2, 0), Vector(264, 38, 0)), False)
sketch12.addGeometry(Part.LineSegment(Vector(264, 38, 0), Vector(348, 38, 0)), False)
sketch12.addGeometry(Part.LineSegment(Vector(348, 38, 0), Vector(348, 2, 0)), False)
sketch12.addGeometry(Part.LineSegment(Vector(348, 2, 0), Vector(301, 2, 0)), False)
sketch12.addGeometry(Part.LineSegment(Vector(301, 2, 0), Vector(301, 10, 0)), False)
sketch12.addConstraint(Sketcher.Constraint("Coincident", 0, 2, 1, 1))
sketch12.addConstraint(Sketcher.Constraint("Coincident", 1, 2, 2, 1))
sketch12.addConstraint(Sketcher.Constraint("Coincident", 2, 2, 3, 1))
sketch12.addConstraint(Sketcher.Constraint("Coincident", 3, 2, 4, 1))
sketch12.addConstraint(Sketcher.Constraint("Coincident", 4, 2, 5, 1))
sketch12.addConstraint(Sketcher.Constraint("Coincident", 5, 2, 6, 1))
sketch12.addConstraint(Sketcher.Constraint("Coincident", 6, 2, 7, 1))
sketch12.addConstraint(Sketcher.Constraint("Coincident", 7, 2, 0, 1))
sketch12.addConstraint(Sketcher.Constraint("Horizontal", 0))
sketch12.addConstraint(Sketcher.Constraint("Vertical", 1))
sketch12.addConstraint(Sketcher.Constraint("Horizontal", 2))
sketch12.addConstraint(Sketcher.Constraint("Vertical", 3))
sketch12.addConstraint(Sketcher.Constraint("Horizontal", 4))
sketch12.addConstraint(Sketcher.Constraint("Vertical", 5))
sketch12.addConstraint(Sketcher.Constraint("Horizontal", 6))
sketch12.addConstraint(Sketcher.Constraint("Vertical", 7))
sketch12.addConstraint(Sketcher.Constraint("Horizontal", 2, 2, 5, 2))
sketch12.addConstraint(Sketcher.Constraint("DistanceY", 1, 2, 1, 1, 8.0))
sketch12.addConstraint(Sketcher.Constraint("DistanceY", 3, 1, 3, 2, 36.0))
sketch12.addConstraint(Sketcher.Constraint("DistanceX", 4, 1, 4, 2, 83.8))
sketch12.addConstraint(Sketcher.Constraint("DistanceY", -1, 1, 0, 2, 10.0))
sketch12.addConstraint(Sketcher.Constraint("DistanceX", 0, 2, 0, 1, 18.492901))
sketch12.addConstraint(Sketcher.Constraint("DistanceX", 2, 2, 2, 1, 18.208673))
sketch12.addConstraint(Sketcher.Constraint("DistanceX", -1, 1, 0, 2, 282.595411))
sketch12.setExpression("Constraints[17]", "Params.sketch12_height")
sketch12.setExpression("Constraints[18]", "Params.sketch12_height2")
sketch12.setExpression("Constraints[19]", "Params.sketch12_width")
pad6 = body.newObject("PartDesign::Pad", "Pad005")
pad6.Profile = sketch12
pad6.setExpression("Length", "Params.pad6_length")
pad6.Reversed = True

sketch13 = body.newObject("Sketcher::SketchObject", "Sketch012")
sketch13.AttachmentSupport = (doc.getObject("XZ_Plane"), [""])
sketch13.MapMode = "FlatFace"
sketch13.AttachmentOffset = App.Placement(Vector(0, 0, -263.186738), App.Rotation())
sketch13.addGeometry(Part.LineSegment(Vector(-523, 38, 0), Vector(-523, 0, 0)), False)
sketch13.addGeometry(Part.LineSegment(Vector(-523, 0, 0), Vector(-403, 0, 0)), False)
sketch13.addGeometry(Part.LineSegment(Vector(-403, 0, 0), Vector(-403, 38, 0)), False)
sketch13.addGeometry(Part.LineSegment(Vector(-403, 38, 0), Vector(-523, 38, 0)), False)
sketch13.addConstraint(Sketcher.Constraint("Coincident", 0, 2, 1, 1))
sketch13.addConstraint(Sketcher.Constraint("Coincident", 1, 2, 2, 1))
sketch13.addConstraint(Sketcher.Constraint("Coincident", 2, 2, 3, 1))
sketch13.addConstraint(Sketcher.Constraint("Coincident", 3, 2, 0, 1))
sketch13.addConstraint(Sketcher.Constraint("Vertical", 0))
sketch13.addConstraint(Sketcher.Constraint("Horizontal", 1))
sketch13.addConstraint(Sketcher.Constraint("Vertical", 2))
sketch13.addConstraint(Sketcher.Constraint("Horizontal", 3))
sketch13.addConstraint(Sketcher.Constraint("PointOnObject", 0, 2, -1))
sketch13.addConstraint(Sketcher.Constraint("DistanceX", 1, 1, 1, 2, 120.0))
sketch13.addConstraint(Sketcher.Constraint("DistanceY", 0, 2, 0, 1, 38.0))
sketch13.addConstraint(Sketcher.Constraint("DistanceX", 0, 2, -1, 1, 523.106796))
sketch13.setExpression("Constraints[9]", "Params.sketch13_width")
sketch13.setExpression("Constraints[10]", "Params.sketch13_height")
pad7 = body.newObject("PartDesign::Pad", "Pad006")
pad7.Profile = sketch13
pad7.setExpression("Length", "Params.pad7_length")

sketch14 = body.newObject("Sketcher::SketchObject", "Sketch013")
sketch14.AttachmentSupport = (doc.getObject("XY_Plane"), [""])
sketch14.MapMode = "FlatFace"
sketch14.AttachmentOffset = App.Placement(Vector(0, 0, -2.1), App.Rotation())
sketch14.addGeometry(Part.Circle(Vector(-481.4, 317.4, 0), Vector(0, 0, 1), 2), False)
sketch14.addGeometry(Part.Circle(Vector(-481.4, 317.4, 0), Vector(0, 0, 1), 1.1), False)
sketch14.addGeometry(Part.Circle(Vector(-481.4, 296.2, 0), Vector(0, 0, 1), 2), False)
sketch14.addGeometry(Part.Circle(Vector(-481.4, 296.2, 0), Vector(0, 0, 1), 1.1), False)
sketch14.addGeometry(Part.LineSegment(Vector(-466.8, 319.5, 0), Vector(-466.8, 315.3, 0)), False)
sketch14.addGeometry(Part.LineSegment(Vector(-466.8, 315.3, 0), Vector(-474, 315.3, 0)), False)
sketch14.addGeometry(Part.LineSegment(Vector(-474, 315.3, 0), Vector(-474, 319.5, 0)), False)
sketch14.addGeometry(Part.LineSegment(Vector(-474, 319.5, 0), Vector(-466.8, 319.5, 0)), False)
sketch14.addGeometry(Part.LineSegment(Vector(-472.8, 316.3, 0), Vector(-467.8, 316.3, 0)), False)
sketch14.addGeometry(Part.LineSegment(Vector(-467.8, 316.3, 0), Vector(-467.8, 318.5, 0)), False)
sketch14.addGeometry(Part.LineSegment(Vector(-467.8, 318.5, 0), Vector(-472.8, 318.5, 0)), False)
sketch14.addGeometry(Part.LineSegment(Vector(-472.8, 318.5, 0), Vector(-472.8, 316.3, 0)), False)
sketch14.addGeometry(Part.LineSegment(Vector(-466.7, 298.3, 0), Vector(-466.7, 294.1, 0)), False)
sketch14.addGeometry(Part.LineSegment(Vector(-466.7, 294.1, 0), Vector(-473.9, 294.1, 0)), False)
sketch14.addGeometry(Part.LineSegment(Vector(-473.9, 294.1, 0), Vector(-473.9, 298.3, 0)), False)
sketch14.addGeometry(Part.LineSegment(Vector(-473.9, 298.3, 0), Vector(-466.7, 298.3, 0)), False)
sketch14.addGeometry(Part.LineSegment(Vector(-472.8, 295.1, 0), Vector(-467.8, 295.1, 0)), False)
sketch14.addGeometry(Part.LineSegment(Vector(-467.8, 295.1, 0), Vector(-467.8, 297.3, 0)), False)
sketch14.addGeometry(Part.LineSegment(Vector(-467.8, 297.3, 0), Vector(-472.8, 297.3, 0)), False)
sketch14.addGeometry(Part.LineSegment(Vector(-472.8, 297.3, 0), Vector(-472.8, 295.1, 0)), False)
sketch14.addConstraint(Sketcher.Constraint("Coincident", 4, 2, 5, 1))
sketch14.addConstraint(Sketcher.Constraint("Coincident", 5, 2, 6, 1))
sketch14.addConstraint(Sketcher.Constraint("Coincident", 6, 2, 7, 1))
sketch14.addConstraint(Sketcher.Constraint("Coincident", 7, 2, 4, 1))
sketch14.addConstraint(Sketcher.Constraint("Coincident", 8, 2, 9, 1))
sketch14.addConstraint(Sketcher.Constraint("Coincident", 9, 2, 10, 1))
sketch14.addConstraint(Sketcher.Constraint("Coincident", 10, 2, 11, 1))
sketch14.addConstraint(Sketcher.Constraint("Coincident", 11, 2, 8, 1))
sketch14.addConstraint(Sketcher.Constraint("Coincident", 12, 2, 13, 1))
sketch14.addConstraint(Sketcher.Constraint("Coincident", 13, 2, 14, 1))
sketch14.addConstraint(Sketcher.Constraint("Coincident", 14, 2, 15, 1))
sketch14.addConstraint(Sketcher.Constraint("Coincident", 15, 2, 12, 1))
sketch14.addConstraint(Sketcher.Constraint("Coincident", 16, 2, 17, 1))
sketch14.addConstraint(Sketcher.Constraint("Coincident", 17, 2, 18, 1))
sketch14.addConstraint(Sketcher.Constraint("Coincident", 18, 2, 19, 1))
sketch14.addConstraint(Sketcher.Constraint("Coincident", 19, 2, 16, 1))
sketch14.addConstraint(Sketcher.Constraint("Vertical", 4))
sketch14.addConstraint(Sketcher.Constraint("Horizontal", 5))
sketch14.addConstraint(Sketcher.Constraint("Vertical", 6))
sketch14.addConstraint(Sketcher.Constraint("Horizontal", 7))
sketch14.addConstraint(Sketcher.Constraint("Horizontal", 8))
sketch14.addConstraint(Sketcher.Constraint("Vertical", 9))
sketch14.addConstraint(Sketcher.Constraint("Horizontal", 10))
sketch14.addConstraint(Sketcher.Constraint("Vertical", 11))
sketch14.addConstraint(Sketcher.Constraint("Vertical", 12))
sketch14.addConstraint(Sketcher.Constraint("Horizontal", 13))
sketch14.addConstraint(Sketcher.Constraint("Vertical", 14))
sketch14.addConstraint(Sketcher.Constraint("Horizontal", 15))
sketch14.addConstraint(Sketcher.Constraint("Horizontal", 16))
sketch14.addConstraint(Sketcher.Constraint("Vertical", 17))
sketch14.addConstraint(Sketcher.Constraint("Horizontal", 18))
sketch14.addConstraint(Sketcher.Constraint("Vertical", 19))
sketch14.addConstraint(Sketcher.Constraint("Coincident", 1, 3, 0, 3))
sketch14.addConstraint(Sketcher.Constraint("Coincident", 3, 3, 2, 3))
sketch14.addConstraint(Sketcher.Constraint("Vertical", 1, 3, 2, 3))
sketch14.addConstraint(Sketcher.Constraint("Vertical", 9, 2, 16, 2))
sketch14.addConstraint(Sketcher.Constraint("Vertical", 11, 2, 18, 2))
sketch14.addConstraint(Sketcher.Constraint("Equal", 7, 13))
sketch14.addConstraint(Sketcher.Constraint("Equal", 6, 12))
sketch14.addConstraint(Sketcher.Constraint("Equal", 11, 17))
sketch14.addConstraint(Sketcher.Constraint("Diameter", 0, 4.0))
sketch14.addConstraint(Sketcher.Constraint("Diameter", 3, 2.2))
sketch14.addConstraint(Sketcher.Constraint("DistanceX", 5, 2, 5, 1, 7.2))
sketch14.addConstraint(Sketcher.Constraint("DistanceY", 4, 2, 4, 1, 4.2))
sketch14.addConstraint(Sketcher.Constraint("DistanceY", 9, 1, 9, 2, 2.2))
sketch14.addConstraint(Sketcher.Constraint("DistanceY", 4, 2, 8, 2, 1.0))
sketch14.addConstraint(Sketcher.Constraint("Diameter", 2, 4.003299))
sketch14.addConstraint(Sketcher.Constraint("DistanceY", 2, 3, 0, 3, 21.2))
sketch14.addConstraint(Sketcher.Constraint("DistanceY", 4, 2, 0, 3, 2.1))
sketch14.addConstraint(Sketcher.Constraint("DistanceX", 0, 3, 8, 2, 13.6))
sketch14.addConstraint(Sketcher.Constraint("DistanceY", 16, 2, 2, 3, 1.1))
sketch14.addConstraint(Sketcher.Constraint("Diameter", 1, 2.170418))
sketch14.addConstraint(Sketcher.Constraint("DistanceX", 8, 1, 8, 2, 5.025))
sketch14.addConstraint(Sketcher.Constraint("DistanceY", 12, 2, 2, 3, 2.0528))
sketch14.addConstraint(Sketcher.Constraint("DistanceX", 0, 3, 4, 2, 14.573619))
sketch14.addConstraint(Sketcher.Constraint("DistanceX", 2, 3, 12, 2, 14.643369))
sketch14.addConstraint(Sketcher.Constraint("DistanceX", 0, 3, -1, 1, 481.368796))
sketch14.addConstraint(Sketcher.Constraint("DistanceY", -1, 1, 0, 3, 317.386738))
sketch14.setExpression("Constraints[40]", "Params.sketch14_diameter")
sketch14.setExpression("Constraints[41]", "Params.sketch14_diameter2")
sketch14.setExpression("Constraints[42]", "Params.sketch14_width")
sketch14.setExpression("Constraints[43]", "Params.sketch14_height")
sketch14.setExpression("Constraints[44]", "Params.sketch14_height2")
pad8 = body.newObject("PartDesign::Pad", "Pad007")
pad8.Profile = sketch14
pad8.setExpression("Length", "Params.pad8_length")

sketch15 = body.newObject("Sketcher::SketchObject", "Sketch014")
sketch15.AttachmentSupport = (doc.getObject("XY_Plane"), [""])
sketch15.MapMode = "FlatFace"
sketch15.AttachmentOffset = App.Placement(Vector(0, 0, 38), App.Rotation())
sketch15.addGeometry(Part.LineSegment(Vector(-523, 350, 0), Vector(-523, 262, 0)), False)
sketch15.addGeometry(Part.LineSegment(Vector(-523, 262, 0), Vector(-403, 262, 0)), False)
sketch15.addGeometry(Part.LineSegment(Vector(-403, 262, 0), Vector(-403, 350, 0)), False)
sketch15.addGeometry(Part.LineSegment(Vector(-403, 350, 0), Vector(-523, 350, 0)), False)
sketch15.addConstraint(Sketcher.Constraint("Coincident", 0, 2, 1, 1))
sketch15.addConstraint(Sketcher.Constraint("Coincident", 1, 2, 2, 1))
sketch15.addConstraint(Sketcher.Constraint("Coincident", 2, 2, 3, 1))
sketch15.addConstraint(Sketcher.Constraint("Coincident", 3, 2, 0, 1))
sketch15.addConstraint(Sketcher.Constraint("Vertical", 0))
sketch15.addConstraint(Sketcher.Constraint("Horizontal", 1))
sketch15.addConstraint(Sketcher.Constraint("Vertical", 2))
sketch15.addConstraint(Sketcher.Constraint("Horizontal", 3))
sketch15.addConstraint(Sketcher.Constraint("DistanceX", 1, 1, 1, 2, 120.0))
sketch15.addConstraint(Sketcher.Constraint("DistanceY", 0, 2, 0, 1, 88.0))
sketch15.addConstraint(Sketcher.Constraint("DistanceX", 0, 2, -1, 1, 523.106796))
sketch15.addConstraint(Sketcher.Constraint("DistanceY", -1, 1, 0, 2, 262.186738))
sketch15.setExpression("Constraints[8]", "Params.sketch15_width")
sketch15.setExpression("Constraints[9]", "Params.sketch15_height")
pocket7 = body.newObject("PartDesign::Pocket", "Pocket006")
pocket7.Profile = sketch15
pocket7.setExpression("Length", "Params.pocket7_length")

doc.recompute()
